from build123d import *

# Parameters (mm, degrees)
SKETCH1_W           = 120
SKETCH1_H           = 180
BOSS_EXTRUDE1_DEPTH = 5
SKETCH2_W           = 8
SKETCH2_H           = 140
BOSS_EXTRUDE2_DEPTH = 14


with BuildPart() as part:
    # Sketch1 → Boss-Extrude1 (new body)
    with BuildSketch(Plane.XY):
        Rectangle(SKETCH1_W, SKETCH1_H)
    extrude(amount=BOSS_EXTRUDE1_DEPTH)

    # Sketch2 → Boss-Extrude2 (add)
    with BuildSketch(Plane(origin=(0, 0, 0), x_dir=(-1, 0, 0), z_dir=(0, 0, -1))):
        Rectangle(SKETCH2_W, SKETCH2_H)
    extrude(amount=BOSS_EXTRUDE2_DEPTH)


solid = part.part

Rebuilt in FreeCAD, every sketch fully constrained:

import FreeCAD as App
import Part
import Sketcher
from FreeCAD import Vector


def add_polygon(sketch, points):
    """Adds a closed chain of lines whose ends are joined by coincident constraints."""
    first, n = sketch.GeometryCount, len(points)
    for a, b in zip(points, points[1:] + points[:1]):
        sketch.addGeometry(Part.LineSegment(App.Vector(*a, 0), App.Vector(*b, 0)), False)
    for i in range(n):
        sketch.addConstraint(Sketcher.Constraint("Coincident", first + i, 2, first + (i + 1) % n, 1))

doc = App.newDocument("Part")
body = doc.addObject("PartDesign::Body", "Body")

# Sketch on XY plane
sketch1 = body.newObject("Sketcher::SketchObject", "Sketch")
sketch1.AttachmentSupport = (doc.getObject("XY_Plane"), [""])
sketch1.MapMode = "FlatFace"
add_polygon(sketch1, [(-60, 90), (-60, -90), (60, -90), (60, 90)])  # lines 0-3
sketch1.addConstraint(Sketcher.Constraint("Vertical", 0))
sketch1.addConstraint(Sketcher.Constraint("Horizontal", 1))
sketch1.addConstraint(Sketcher.Constraint("Vertical", 2))
sketch1.addConstraint(Sketcher.Constraint("Horizontal", 3))
sketch1.addConstraint(Sketcher.Constraint("Symmetric", 0, 2, 2, 2, -1, 1))
sketch1.addConstraint(Sketcher.Constraint("DistanceX", 1, 1, 1, 2, 120.0))
sketch1.addConstraint(Sketcher.Constraint("DistanceY", 0, 2, 0, 1, 180.0))
pad1 = body.newObject("PartDesign::Pad", "Pad")
pad1.Profile = sketch1
pad1.Length = 5

# Sketch on XY plane
sketch2 = body.newObject("Sketcher::SketchObject", "Sketch001")
sketch2.AttachmentSupport = (doc.getObject("XY_Plane"), [""])
sketch2.MapMode = "FlatFace"
add_polygon(sketch2, [(4, 70), (4, -70), (-4, -70), (-4, 70)])  # lines 0-3
sketch2.addConstraint(Sketcher.Constraint("Vertical", 0))
sketch2.addConstraint(Sketcher.Constraint("Horizontal", 1))
sketch2.addConstraint(Sketcher.Constraint("Vertical", 2))
sketch2.addConstraint(Sketcher.Constraint("Horizontal", 3))
sketch2.addConstraint(Sketcher.Constraint("Symmetric", 0, 2, 2, 2, -1, 1))
sketch2.addConstraint(Sketcher.Constraint("DistanceX", 1, 2, 1, 1, 8.0))
sketch2.addConstraint(Sketcher.Constraint("DistanceY", 0, 2, 0, 1, 140.0))
pad2 = body.newObject("PartDesign::Pad", "Pad001")
pad2.Profile = sketch2
pad2.Length = 14
pad2.Reversed = True

doc.recompute()
